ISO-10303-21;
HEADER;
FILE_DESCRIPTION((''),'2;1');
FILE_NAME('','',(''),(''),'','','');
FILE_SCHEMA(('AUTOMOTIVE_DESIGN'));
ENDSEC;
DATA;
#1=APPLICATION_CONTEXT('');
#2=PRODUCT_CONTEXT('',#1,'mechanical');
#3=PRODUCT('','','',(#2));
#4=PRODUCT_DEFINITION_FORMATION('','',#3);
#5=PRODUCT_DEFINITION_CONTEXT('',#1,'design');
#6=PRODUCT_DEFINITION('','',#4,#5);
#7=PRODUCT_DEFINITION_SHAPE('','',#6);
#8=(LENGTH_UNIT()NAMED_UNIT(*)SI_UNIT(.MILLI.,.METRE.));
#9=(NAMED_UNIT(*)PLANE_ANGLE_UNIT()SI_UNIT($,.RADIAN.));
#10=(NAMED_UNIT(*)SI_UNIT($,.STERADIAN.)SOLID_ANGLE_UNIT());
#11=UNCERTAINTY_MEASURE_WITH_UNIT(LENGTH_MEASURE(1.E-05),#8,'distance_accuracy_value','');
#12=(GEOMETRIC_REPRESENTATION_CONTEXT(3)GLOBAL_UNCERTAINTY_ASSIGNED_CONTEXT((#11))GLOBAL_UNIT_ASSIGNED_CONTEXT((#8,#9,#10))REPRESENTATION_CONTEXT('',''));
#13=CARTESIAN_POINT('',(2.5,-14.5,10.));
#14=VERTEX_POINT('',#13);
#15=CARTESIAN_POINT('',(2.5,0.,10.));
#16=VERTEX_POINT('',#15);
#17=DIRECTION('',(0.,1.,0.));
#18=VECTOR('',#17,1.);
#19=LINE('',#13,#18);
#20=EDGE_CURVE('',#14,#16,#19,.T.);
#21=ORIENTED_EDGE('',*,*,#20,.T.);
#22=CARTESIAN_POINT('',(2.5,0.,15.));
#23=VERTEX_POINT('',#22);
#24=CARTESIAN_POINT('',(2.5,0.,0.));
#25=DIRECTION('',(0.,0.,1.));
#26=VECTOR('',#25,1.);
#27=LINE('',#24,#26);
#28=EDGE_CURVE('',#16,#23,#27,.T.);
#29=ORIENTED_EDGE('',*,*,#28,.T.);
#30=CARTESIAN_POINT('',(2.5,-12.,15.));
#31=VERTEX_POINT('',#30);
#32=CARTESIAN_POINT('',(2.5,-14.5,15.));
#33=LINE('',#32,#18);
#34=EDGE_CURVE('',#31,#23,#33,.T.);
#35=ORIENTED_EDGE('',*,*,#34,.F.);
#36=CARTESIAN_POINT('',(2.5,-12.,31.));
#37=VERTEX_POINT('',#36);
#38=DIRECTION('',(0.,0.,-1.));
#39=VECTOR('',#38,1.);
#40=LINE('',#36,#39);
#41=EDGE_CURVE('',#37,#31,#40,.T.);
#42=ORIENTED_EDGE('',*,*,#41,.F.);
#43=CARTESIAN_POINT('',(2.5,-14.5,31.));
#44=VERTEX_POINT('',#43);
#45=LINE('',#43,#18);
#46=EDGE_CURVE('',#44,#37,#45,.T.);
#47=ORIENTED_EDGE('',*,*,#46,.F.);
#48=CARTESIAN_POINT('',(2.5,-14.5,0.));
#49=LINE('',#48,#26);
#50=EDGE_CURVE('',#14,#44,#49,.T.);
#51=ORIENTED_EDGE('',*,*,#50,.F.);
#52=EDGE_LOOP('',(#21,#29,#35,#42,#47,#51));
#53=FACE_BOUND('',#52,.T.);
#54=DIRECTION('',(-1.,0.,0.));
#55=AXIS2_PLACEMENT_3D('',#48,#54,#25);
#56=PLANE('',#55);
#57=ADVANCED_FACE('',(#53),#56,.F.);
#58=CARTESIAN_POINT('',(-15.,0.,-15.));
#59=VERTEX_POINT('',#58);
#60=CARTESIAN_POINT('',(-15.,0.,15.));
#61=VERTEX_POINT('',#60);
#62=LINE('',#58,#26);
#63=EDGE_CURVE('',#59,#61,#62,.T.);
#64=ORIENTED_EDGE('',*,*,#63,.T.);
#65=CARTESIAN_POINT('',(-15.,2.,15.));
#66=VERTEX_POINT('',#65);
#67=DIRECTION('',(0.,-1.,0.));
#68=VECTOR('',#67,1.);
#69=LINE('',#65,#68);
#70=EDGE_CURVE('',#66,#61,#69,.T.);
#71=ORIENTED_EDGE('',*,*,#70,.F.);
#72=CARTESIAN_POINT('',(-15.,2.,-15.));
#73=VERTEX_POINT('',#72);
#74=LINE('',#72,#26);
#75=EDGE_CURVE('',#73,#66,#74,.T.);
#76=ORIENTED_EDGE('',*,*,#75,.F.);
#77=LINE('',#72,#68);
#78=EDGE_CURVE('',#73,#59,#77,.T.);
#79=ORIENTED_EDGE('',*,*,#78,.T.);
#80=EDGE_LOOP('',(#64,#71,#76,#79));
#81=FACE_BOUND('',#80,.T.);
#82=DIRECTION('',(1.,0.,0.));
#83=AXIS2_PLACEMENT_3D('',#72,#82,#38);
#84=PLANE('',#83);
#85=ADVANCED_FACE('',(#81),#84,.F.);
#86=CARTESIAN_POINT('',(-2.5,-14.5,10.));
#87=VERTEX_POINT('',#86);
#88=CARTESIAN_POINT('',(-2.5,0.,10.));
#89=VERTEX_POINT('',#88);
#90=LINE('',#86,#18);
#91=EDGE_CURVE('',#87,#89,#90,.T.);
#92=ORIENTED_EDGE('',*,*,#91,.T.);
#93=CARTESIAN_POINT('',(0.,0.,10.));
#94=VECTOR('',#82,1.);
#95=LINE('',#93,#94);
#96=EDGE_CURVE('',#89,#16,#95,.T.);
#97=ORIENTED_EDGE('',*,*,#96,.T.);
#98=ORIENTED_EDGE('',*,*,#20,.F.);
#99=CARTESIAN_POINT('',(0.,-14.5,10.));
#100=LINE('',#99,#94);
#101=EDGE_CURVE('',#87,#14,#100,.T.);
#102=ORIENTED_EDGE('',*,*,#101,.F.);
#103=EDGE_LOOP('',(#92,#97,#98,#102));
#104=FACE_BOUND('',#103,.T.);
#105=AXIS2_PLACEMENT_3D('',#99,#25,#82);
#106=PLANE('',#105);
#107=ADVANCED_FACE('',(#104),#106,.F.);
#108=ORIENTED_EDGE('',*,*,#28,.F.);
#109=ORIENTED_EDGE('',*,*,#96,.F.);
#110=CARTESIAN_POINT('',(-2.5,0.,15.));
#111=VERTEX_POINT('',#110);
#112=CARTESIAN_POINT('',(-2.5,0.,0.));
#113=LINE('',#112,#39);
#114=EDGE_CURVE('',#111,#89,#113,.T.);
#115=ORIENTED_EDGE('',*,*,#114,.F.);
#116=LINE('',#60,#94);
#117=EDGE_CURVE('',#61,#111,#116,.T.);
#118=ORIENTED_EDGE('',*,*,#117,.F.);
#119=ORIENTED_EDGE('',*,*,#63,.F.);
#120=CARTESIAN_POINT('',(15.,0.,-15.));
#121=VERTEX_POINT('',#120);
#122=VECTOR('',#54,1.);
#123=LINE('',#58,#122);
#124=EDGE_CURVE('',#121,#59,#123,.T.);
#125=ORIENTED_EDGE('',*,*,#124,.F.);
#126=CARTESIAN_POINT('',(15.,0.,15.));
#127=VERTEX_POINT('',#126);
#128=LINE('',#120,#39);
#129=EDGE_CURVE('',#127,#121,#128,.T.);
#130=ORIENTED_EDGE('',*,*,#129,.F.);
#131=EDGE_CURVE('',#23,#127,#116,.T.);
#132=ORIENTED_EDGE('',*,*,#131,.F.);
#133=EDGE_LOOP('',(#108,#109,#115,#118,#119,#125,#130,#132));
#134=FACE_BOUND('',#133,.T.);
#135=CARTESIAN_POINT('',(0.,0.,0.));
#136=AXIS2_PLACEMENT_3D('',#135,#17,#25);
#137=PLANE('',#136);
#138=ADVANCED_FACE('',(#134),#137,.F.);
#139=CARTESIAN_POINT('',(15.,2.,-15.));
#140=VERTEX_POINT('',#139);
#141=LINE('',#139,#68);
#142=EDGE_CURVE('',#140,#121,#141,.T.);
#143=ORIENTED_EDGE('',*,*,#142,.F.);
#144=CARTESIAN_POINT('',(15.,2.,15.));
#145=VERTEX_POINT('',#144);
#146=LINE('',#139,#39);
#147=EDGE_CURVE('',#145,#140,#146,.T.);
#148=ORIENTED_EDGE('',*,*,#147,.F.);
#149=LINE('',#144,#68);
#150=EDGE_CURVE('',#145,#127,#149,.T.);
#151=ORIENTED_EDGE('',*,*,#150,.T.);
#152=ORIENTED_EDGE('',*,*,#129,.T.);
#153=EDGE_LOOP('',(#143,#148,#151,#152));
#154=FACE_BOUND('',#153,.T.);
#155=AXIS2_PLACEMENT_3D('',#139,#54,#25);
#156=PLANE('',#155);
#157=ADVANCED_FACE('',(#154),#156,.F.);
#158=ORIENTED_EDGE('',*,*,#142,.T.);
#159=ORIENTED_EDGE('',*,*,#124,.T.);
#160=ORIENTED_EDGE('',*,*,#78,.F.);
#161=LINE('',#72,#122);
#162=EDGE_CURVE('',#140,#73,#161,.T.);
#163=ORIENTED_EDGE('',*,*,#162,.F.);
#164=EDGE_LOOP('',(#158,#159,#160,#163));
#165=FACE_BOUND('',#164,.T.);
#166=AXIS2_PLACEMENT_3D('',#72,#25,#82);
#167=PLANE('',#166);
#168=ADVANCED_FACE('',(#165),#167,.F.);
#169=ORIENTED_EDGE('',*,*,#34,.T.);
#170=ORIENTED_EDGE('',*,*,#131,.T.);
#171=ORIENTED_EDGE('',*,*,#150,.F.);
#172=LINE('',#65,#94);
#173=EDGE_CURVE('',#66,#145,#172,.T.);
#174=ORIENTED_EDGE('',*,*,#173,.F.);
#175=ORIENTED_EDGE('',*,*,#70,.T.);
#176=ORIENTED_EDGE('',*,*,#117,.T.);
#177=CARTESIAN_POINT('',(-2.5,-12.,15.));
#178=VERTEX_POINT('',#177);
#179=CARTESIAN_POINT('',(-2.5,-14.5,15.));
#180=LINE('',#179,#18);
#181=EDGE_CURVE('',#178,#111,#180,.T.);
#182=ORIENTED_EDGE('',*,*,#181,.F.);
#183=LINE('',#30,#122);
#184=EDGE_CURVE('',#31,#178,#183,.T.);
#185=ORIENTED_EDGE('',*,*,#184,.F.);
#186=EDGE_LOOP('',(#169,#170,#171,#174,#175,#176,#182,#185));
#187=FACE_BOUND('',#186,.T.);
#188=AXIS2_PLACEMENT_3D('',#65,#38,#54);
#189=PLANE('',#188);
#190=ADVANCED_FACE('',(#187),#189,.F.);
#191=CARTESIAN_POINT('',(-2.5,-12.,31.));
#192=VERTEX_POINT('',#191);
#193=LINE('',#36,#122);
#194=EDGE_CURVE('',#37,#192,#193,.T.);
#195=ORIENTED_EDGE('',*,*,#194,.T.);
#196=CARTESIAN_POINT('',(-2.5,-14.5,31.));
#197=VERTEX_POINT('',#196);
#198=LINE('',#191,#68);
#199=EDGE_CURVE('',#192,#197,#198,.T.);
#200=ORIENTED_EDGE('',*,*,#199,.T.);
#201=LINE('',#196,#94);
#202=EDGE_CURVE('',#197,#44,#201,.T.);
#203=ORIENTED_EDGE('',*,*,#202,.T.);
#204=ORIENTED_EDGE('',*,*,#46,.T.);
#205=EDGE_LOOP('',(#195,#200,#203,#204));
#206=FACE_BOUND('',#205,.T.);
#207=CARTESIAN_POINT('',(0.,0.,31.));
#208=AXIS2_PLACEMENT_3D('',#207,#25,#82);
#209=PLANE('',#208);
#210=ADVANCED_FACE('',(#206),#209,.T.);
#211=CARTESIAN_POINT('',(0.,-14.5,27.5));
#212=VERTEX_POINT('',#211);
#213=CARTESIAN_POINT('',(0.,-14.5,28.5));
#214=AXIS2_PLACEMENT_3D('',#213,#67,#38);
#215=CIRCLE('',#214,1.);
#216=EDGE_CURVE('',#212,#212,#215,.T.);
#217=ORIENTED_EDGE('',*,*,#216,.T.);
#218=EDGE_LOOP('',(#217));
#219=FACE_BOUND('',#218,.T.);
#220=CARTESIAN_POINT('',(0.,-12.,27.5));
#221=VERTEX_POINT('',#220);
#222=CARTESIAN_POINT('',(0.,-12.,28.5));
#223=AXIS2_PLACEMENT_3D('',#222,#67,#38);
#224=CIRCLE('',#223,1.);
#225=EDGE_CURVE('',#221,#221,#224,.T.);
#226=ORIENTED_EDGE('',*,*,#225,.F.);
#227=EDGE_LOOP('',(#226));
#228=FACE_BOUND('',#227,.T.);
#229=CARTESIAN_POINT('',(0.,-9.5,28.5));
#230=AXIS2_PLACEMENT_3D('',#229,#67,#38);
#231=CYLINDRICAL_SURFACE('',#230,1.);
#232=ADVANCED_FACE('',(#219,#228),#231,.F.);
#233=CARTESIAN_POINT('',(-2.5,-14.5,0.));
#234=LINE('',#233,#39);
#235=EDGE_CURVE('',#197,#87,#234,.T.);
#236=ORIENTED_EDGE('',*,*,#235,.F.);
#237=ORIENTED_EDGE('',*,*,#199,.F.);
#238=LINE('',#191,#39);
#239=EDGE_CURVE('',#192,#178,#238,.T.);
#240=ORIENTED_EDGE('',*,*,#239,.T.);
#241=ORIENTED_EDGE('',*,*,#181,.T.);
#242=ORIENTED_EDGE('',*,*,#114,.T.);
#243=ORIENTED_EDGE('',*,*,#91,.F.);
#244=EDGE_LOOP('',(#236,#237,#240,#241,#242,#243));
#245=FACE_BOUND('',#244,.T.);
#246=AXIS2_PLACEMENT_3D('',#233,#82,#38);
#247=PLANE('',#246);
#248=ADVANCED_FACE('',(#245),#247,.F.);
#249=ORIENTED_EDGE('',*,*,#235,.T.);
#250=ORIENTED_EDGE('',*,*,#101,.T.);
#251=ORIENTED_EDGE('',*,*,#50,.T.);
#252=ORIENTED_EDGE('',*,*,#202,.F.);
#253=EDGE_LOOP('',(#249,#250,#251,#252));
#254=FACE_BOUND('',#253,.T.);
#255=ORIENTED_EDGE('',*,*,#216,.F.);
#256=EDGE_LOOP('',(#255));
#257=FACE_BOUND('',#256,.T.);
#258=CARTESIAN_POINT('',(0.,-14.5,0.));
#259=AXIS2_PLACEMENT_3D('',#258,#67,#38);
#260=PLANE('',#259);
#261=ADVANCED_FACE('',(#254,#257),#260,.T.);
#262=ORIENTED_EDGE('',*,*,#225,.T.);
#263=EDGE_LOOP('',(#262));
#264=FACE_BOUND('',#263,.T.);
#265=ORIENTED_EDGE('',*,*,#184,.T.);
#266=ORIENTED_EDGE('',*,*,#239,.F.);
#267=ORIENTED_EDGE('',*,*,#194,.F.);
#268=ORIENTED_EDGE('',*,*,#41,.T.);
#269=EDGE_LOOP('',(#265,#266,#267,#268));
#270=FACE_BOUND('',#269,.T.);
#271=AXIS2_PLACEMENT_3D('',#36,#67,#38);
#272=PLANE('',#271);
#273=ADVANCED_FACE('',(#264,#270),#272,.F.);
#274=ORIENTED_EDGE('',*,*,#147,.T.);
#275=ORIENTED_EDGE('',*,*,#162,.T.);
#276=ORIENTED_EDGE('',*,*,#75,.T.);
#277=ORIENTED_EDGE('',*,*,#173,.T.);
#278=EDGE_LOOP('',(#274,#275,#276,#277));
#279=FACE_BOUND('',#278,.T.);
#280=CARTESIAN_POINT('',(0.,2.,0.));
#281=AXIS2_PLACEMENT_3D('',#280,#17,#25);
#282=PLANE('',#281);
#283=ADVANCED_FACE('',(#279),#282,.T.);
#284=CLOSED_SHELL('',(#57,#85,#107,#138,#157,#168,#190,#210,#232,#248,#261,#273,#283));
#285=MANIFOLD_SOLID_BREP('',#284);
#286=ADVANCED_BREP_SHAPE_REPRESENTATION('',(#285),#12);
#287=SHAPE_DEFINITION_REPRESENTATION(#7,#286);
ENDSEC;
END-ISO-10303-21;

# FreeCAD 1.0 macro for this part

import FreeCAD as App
import Part
import Sketcher
from FreeCAD import Vector
Q = App.Units.Quantity


def add_polygon(sketch, points):
    """Adds a closed chain of lines whose ends are joined by coincident constraints."""
    first, n = sketch.GeometryCount, len(points)
    for a, b in zip(points, points[1:] + points[:1]):
        sketch.addGeometry(Part.LineSegment(App.Vector(*a, 0), App.Vector(*b, 0)), False)
    for i in range(n):
        sketch.addConstraint(Sketcher.Constraint("Coincident", first + i, 2, first + (i + 1) % n, 1))

doc = App.newDocument("Part")
body = doc.addObject("PartDesign::Body", "Body")

# Sketch on XZ plane
sketch1 = doc.addObject("Sketcher::SketchObject", "Sketch")
body.addObject(sketch1)
sketch1.AttachmentSupport = (doc.XZ_Plane, [""])
sketch1.MapMode = "FlatFace"
add_polygon(sketch1, [(-15, -15), (-15, 15), (15, 15), (15, -15)])  # lines 0-3
sketch1.addConstraint([
    Sketcher.Constraint("Vertical", 0),
    Sketcher.Constraint("Horizontal", 1),
    Sketcher.Constraint("Vertical", 2),
    Sketcher.Constraint("Horizontal", 3),
    Sketcher.Constraint("Symmetric", 0, 2, 2, 2, -1, 1),
    Sketcher.Constraint("Equal", 3, 0),
    Sketcher.Constraint("DistanceX", 1, 1, 1, 2, Q("30 mm")),
])
pad1 = doc.addObject("PartDesign::Pad", "Pad")
body.addObject(pad1)
pad1.Profile = sketch1
pad1.Length = 2
pad1.Reversed = True

# Sketch on XZ plane
sketch2 = doc.addObject("Sketcher::SketchObject", "Sketch001")
body.addObject(sketch2)
sketch2.AttachmentSupport = (doc.XZ_Plane, [""])
sketch2.MapMode = "FlatFace"
add_polygon(sketch2, [(2.5, 15), (-2.5, 15), (-2.5, 10), (2.5, 10)])  # lines 0-3
sketch2.addConstraint([
    Sketcher.Constraint("Horizontal", 0),
    Sketcher.Constraint("Vertical", 1),
    Sketcher.Constraint("Horizontal", 2),
    Sketcher.Constraint("Vertical", 3),
    Sketcher.Constraint("Equal", 2, 1),
    Sketcher.Constraint("DistanceX", 0, 2, 0, 1, Q("5 mm")),
    Sketcher.Constraint("DistanceY", -1, 1, 0, 2, Q("15 mm")),
    Sketcher.Constraint("DistanceX", 0, 2, -1, 1, Q("2.5 mm")),
])
pad2 = doc.addObject("PartDesign::Pad", "Pad001")
body.addObject(pad2)
pad2.Profile = sketch2
pad2.Length = 14.5

# Sketch on XY plane
sketch3 = doc.addObject("Sketcher::SketchObject", "Sketch002")
body.addObject(sketch3)
sketch3.AttachmentSupport = (doc.XY_Plane, [""])
sketch3.MapMode = "FlatFace"
sketch3.AttachmentOffset = App.Placement(Vector(0, 0, 15), App.Rotation())
add_polygon(sketch3, [(-2.5, -12), (-2.5, -14.5), (2.5, -14.5), (2.5, -12)])  # lines 0-3
sketch3.addConstraint([
    Sketcher.Constraint("Vertical", 0),
    Sketcher.Constraint("Horizontal", 1),
    Sketcher.Constraint("Vertical", 2),
    Sketcher.Constraint("Horizontal", 3),
    Sketcher.Constraint("DistanceX", 1, 1, 1, 2, Q("5 mm")),
    Sketcher.Constraint("DistanceY", 0, 2, 0, 1, Q("2.5 mm")),
    Sketcher.Constraint("DistanceY", 2, 2, -1, 1, Q("12 mm")),
    Sketcher.Constraint("DistanceX", 0, 2, -1, 1, Q("2.5 mm")),
])
pad3 = doc.addObject("PartDesign::Pad", "Pad002")
body.addObject(pad3)
pad3.Profile = sketch3
pad3.Length = 16

# Sketch on XZ plane
sketch4 = doc.addObject("Sketcher::SketchObject", "Sketch003")
body.addObject(sketch4)
sketch4.AttachmentSupport = (doc.XZ_Plane, [""])
sketch4.MapMode = "FlatFace"
sketch4.AttachmentOffset = App.Placement(Vector(0, 0, 14.5), App.Rotation())
sketch4.addGeometry(Part.Circle(Vector(0, 28.5, 0), Vector(0, 0, 1), 1), False)
sketch4.addConstraint([
    Sketcher.Constraint("PointOnObject", 0, 3, -2),
    Sketcher.Constraint("Diameter", 0, Q("2 mm")),
    Sketcher.Constraint("DistanceY", -1, 1, 0, 3, Q("28.5 mm")),
])
pocket1 = doc.addObject("PartDesign::Pocket", "Pocket")
body.addObject(pocket1)
pocket1.Profile = sketch4
pocket1.Length = 5

doc.recompute()
